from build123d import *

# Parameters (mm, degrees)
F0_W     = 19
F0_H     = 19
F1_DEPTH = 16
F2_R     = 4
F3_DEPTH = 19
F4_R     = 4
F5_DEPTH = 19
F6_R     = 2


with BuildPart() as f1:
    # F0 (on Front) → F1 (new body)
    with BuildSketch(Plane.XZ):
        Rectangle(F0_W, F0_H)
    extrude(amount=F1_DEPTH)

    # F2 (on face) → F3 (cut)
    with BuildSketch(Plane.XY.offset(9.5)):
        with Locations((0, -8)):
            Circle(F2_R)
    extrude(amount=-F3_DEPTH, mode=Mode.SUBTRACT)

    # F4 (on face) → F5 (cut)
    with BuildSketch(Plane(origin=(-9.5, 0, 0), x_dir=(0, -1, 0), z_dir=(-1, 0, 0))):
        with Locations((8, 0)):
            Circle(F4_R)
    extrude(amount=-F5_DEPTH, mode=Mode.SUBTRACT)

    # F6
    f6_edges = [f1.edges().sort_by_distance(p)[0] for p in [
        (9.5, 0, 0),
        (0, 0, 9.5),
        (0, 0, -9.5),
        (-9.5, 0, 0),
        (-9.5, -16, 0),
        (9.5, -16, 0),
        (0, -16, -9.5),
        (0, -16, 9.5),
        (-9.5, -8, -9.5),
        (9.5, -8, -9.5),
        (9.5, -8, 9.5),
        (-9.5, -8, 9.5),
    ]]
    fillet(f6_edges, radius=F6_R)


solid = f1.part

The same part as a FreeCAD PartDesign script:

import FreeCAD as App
import Part
import Sketcher
Q = App.Units.Quantity


def edges_at(feature, points):
    """Names of the edges that pass closest to the given points."""
    edges = feature.Shape.Edges
    near = lambda p: min(range(len(edges)), key=lambda i: edges[i].distToShape(Part.Vertex(*p))[0])
    return sorted({f"Edge{near(p) + 1}" for p in points})

doc = App.newDocument("Part")
body = doc.addObject("PartDesign::Body", "Body")

# Sketch on XZ plane
sketch1 = doc.addObject("Sketcher::SketchObject", "Sketch")
body.addObject(sketch1)
sketch1.AttachmentSupport = (doc.XZ_Plane, [""])
sketch1.MapMode = "FlatFace"
sketch1.addGeometry([
    Part.LineSegment(App.Vector(-9.5, 9.5, 0), App.Vector(-9.5, -9.5, 0)),
    Part.LineSegment(App.Vector(-9.5, -9.5, 0), App.Vector(9.5, -9.5, 0)),
    Part.LineSegment(App.Vector(9.5, -9.5, 0), App.Vector(9.5, 9.5, 0)),
    Part.LineSegment(App.Vector(9.5, 9.5, 0), App.Vector(-9.5, 9.5, 0)),
], False)
sketch1.addConstraint([
    Sketcher.Constraint("Coincident", 0, 2, 1, 1),
    Sketcher.Constraint("Coincident", 1, 2, 2, 1),
    Sketcher.Constraint("Coincident", 2, 2, 3, 1),
    Sketcher.Constraint("Coincident", 3, 2, 0, 1),
    Sketcher.Constraint("Vertical", 0),
    Sketcher.Constraint("Horizontal", 1),
    Sketcher.Constraint("Vertical", 2),
    Sketcher.Constraint("Horizontal", 3),
    Sketcher.Constraint("Symmetric", 0, 2, 2, 2, -1, 1),
    Sketcher.Constraint("Equal", 3, 0),
    Sketcher.Constraint("DistanceX", 1, 1, 1, 2, Q("19 mm")),
])
pad1 = doc.addObject("PartDesign::Pad", "Pad")
body.addObject(pad1)
pad1.Profile = sketch1
pad1.Length = 16

# Sketch on XY plane
sketch2 = doc.addObject("Sketcher::SketchObject", "Sketch001")
body.addObject(sketch2)
sketch2.AttachmentSupport = (doc.XY_Plane, [""])
sketch2.MapMode = "FlatFace"
sketch2.AttachmentOffset = App.Placement(App.Vector(0, 0, 9.5), App.Rotation())
sketch2.addGeometry(Part.Circle(App.Vector(0, -8, 0), App.Vector(0, 0, 1), 4), False)
sketch2.addConstraint([
    Sketcher.Constraint("PointOnObject", 0, 3, -2),
    Sketcher.Constraint("Diameter", 0, Q("8 mm")),
    Sketcher.Constraint("DistanceY", 0, 3, -1, 1, Q("8 mm")),
])
pocket1 = doc.addObject("PartDesign::Pocket", "Pocket")
body.addObject(pocket1)
pocket1.Profile = sketch2
pocket1.Length = 19

# Sketch on YZ plane
sketch3 = doc.addObject("Sketcher::SketchObject", "Sketch002")
body.addObject(sketch3)
sketch3.AttachmentSupport = (doc.YZ_Plane, [""])
sketch3.MapMode = "FlatFace"
sketch3.AttachmentOffset = App.Placement(App.Vector(0, 0, -9.5), App.Rotation())
sketch3.addGeometry(Part.Circle(App.Vector(-8, 0, 0), App.Vector(0, 0, 1), 4), False)
sketch3.addConstraint([
    Sketcher.Constraint("PointOnObject", 0, 3, -1),
    Sketcher.Constraint("Diameter", 0, Q("8 mm")),
    Sketcher.Constraint("DistanceX", 0, 3, -1, 1, Q("8 mm")),
])
pocket2 = doc.addObject("PartDesign::Pocket", "Pocket001")
body.addObject(pocket2)
pocket2.Profile = sketch3
pocket2.Length = 19
pocket2.Reversed = True
doc.recompute()

fillet = doc.addObject("PartDesign::Fillet", "Fillet")
body.addObject(fillet)
fillet.Base = (pocket2, edges_at(pocket2, [
    (9.5, 0, 0),
    (0, 0, 9.5),
    (0, 0, -9.5),
    (-9.5, 0, 0),
    (-9.5, -16, 0),
    (9.5, -16, 0),
    (0, -16, -9.5),
    (0, -16, 9.5),
    (-9.5, -8, -9.5),
    (9.5, -8, -9.5),
    (9.5, -8, 9.5),
    (-9.5, -8, 9.5),
]))
fillet.Radius = 2

doc.recompute()
